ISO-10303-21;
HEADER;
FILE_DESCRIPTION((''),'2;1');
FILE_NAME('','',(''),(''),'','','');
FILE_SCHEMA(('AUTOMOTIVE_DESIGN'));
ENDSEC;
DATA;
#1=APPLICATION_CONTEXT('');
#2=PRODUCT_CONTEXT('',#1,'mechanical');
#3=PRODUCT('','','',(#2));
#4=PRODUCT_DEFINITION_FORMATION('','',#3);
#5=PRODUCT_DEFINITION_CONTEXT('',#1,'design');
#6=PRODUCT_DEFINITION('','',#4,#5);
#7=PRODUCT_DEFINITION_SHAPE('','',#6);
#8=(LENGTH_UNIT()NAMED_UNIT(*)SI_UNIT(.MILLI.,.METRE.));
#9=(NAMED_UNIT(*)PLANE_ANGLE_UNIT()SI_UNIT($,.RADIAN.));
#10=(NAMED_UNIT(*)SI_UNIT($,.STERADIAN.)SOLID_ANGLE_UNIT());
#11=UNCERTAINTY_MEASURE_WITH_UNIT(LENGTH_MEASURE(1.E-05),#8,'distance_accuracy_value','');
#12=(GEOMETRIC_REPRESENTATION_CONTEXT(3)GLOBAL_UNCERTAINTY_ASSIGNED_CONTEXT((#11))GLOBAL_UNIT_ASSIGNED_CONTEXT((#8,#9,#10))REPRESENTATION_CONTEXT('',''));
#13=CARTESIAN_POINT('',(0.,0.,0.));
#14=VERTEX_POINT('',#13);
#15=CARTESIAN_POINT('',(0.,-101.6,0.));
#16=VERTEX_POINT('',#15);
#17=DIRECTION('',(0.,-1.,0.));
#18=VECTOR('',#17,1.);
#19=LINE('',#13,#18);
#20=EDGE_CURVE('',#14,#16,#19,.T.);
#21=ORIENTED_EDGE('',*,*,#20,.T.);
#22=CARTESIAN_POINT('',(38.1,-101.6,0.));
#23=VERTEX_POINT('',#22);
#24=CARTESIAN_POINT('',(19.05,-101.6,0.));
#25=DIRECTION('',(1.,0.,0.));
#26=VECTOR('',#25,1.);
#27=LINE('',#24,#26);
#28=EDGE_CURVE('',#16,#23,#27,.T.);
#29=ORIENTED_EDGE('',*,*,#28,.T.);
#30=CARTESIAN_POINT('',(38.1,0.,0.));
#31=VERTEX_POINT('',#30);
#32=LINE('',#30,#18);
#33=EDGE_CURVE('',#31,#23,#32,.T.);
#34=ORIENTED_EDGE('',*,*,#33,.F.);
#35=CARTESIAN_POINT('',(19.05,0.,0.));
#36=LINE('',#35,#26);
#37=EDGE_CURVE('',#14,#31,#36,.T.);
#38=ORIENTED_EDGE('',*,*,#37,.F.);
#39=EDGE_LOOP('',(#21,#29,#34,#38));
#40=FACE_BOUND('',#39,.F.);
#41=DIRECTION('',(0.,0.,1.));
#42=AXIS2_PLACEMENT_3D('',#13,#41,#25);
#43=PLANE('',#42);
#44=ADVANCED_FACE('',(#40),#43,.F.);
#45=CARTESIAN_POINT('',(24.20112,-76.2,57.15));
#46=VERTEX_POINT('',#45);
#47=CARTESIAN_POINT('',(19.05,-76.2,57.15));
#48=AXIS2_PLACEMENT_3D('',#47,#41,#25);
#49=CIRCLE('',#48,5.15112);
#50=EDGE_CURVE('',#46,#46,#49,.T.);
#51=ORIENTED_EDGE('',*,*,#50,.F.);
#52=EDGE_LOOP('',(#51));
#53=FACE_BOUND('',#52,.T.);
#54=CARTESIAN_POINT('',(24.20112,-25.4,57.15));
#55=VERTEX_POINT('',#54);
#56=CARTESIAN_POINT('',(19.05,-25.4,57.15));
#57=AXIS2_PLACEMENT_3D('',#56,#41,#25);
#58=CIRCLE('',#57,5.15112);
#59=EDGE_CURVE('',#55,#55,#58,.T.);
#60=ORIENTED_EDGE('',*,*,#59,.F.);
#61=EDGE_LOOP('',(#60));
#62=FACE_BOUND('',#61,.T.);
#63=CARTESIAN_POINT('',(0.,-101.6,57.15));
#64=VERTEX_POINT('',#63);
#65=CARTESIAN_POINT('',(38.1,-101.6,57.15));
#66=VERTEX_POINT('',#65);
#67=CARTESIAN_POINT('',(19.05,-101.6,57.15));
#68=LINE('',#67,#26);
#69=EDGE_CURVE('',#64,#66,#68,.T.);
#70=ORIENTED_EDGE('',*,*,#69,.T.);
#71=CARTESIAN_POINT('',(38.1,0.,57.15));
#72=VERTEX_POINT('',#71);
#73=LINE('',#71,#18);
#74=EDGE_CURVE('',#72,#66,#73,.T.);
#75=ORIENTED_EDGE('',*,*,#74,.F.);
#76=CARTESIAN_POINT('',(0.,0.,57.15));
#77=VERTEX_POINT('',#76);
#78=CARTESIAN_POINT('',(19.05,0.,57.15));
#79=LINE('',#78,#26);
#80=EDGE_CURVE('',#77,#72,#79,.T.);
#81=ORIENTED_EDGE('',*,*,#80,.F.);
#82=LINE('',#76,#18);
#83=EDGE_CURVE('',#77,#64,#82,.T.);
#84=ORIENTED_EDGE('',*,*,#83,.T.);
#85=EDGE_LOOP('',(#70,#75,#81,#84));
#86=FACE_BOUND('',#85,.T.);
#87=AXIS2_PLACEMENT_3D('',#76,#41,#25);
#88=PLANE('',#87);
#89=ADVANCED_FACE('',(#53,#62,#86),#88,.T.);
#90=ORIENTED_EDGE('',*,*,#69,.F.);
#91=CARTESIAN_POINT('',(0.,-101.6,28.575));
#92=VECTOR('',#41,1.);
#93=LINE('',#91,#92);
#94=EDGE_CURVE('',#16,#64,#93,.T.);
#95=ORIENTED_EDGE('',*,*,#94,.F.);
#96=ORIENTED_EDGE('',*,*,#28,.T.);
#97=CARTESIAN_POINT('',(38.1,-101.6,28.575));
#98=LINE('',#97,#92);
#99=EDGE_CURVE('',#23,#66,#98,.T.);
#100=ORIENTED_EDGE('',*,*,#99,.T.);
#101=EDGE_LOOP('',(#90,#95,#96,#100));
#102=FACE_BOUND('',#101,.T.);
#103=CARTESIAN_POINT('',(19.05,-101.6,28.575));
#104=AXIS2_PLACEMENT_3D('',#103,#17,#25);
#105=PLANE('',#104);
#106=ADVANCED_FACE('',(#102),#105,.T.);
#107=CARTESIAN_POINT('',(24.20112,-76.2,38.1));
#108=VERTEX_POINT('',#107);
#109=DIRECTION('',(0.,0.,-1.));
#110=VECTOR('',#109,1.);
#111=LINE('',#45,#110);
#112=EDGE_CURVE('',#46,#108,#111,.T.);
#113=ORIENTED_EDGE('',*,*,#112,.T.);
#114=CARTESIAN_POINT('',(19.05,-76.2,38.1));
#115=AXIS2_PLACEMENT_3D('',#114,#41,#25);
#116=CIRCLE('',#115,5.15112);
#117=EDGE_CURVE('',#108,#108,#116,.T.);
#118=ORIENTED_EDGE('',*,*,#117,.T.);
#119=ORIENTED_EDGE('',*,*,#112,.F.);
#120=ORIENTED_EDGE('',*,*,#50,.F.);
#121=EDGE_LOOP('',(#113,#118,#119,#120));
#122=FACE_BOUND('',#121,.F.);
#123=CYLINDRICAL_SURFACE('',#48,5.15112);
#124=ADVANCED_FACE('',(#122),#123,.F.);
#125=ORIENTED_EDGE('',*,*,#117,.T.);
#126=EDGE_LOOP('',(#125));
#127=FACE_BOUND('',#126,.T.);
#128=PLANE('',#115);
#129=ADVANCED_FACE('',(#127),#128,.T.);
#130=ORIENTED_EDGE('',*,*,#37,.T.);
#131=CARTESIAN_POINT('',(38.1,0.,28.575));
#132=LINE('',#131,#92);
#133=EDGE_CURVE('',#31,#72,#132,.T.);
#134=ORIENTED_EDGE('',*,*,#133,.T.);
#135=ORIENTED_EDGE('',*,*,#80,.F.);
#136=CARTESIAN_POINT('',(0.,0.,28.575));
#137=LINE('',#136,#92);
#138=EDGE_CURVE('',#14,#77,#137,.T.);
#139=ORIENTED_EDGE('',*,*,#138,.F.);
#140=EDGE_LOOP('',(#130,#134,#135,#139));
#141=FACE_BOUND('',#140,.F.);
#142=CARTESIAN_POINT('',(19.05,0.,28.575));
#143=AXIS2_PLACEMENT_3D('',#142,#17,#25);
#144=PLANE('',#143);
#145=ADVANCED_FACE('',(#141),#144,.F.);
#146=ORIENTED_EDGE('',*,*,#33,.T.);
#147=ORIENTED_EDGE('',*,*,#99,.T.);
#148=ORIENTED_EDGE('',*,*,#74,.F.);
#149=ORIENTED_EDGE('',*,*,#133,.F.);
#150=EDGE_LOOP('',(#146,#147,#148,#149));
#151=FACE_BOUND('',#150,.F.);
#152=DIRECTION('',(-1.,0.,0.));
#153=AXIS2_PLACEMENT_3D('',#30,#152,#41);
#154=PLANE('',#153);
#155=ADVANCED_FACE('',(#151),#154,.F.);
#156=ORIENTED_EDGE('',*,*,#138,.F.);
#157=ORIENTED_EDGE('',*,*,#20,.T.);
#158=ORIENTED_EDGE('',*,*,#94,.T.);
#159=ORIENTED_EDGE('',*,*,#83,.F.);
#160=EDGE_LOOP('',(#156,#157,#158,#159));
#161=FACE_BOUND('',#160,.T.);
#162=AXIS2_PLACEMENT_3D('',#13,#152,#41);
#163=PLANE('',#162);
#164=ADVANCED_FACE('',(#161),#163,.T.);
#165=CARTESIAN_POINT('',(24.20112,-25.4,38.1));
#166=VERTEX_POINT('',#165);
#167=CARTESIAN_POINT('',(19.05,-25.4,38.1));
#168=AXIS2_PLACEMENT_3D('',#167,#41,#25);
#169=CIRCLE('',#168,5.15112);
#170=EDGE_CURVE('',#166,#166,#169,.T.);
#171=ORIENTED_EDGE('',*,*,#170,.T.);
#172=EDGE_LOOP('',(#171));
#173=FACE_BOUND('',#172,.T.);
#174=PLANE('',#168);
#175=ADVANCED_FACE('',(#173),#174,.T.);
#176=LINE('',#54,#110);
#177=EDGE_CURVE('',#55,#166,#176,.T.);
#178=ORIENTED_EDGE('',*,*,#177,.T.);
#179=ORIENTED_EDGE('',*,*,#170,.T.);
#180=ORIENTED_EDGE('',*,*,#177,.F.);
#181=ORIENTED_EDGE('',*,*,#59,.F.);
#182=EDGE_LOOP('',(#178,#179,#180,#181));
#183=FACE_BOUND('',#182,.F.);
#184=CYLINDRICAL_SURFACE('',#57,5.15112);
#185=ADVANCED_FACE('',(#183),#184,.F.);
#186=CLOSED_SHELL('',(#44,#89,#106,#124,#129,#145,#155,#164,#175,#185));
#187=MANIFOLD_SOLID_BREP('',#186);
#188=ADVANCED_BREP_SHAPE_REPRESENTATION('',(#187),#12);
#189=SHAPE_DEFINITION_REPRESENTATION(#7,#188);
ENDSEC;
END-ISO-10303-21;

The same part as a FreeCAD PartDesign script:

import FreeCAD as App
import Part
import Sketcher
Q = App.Units.Quantity


def add_polygon(sketch, points):
    """Adds a closed chain of lines whose ends are joined by coincident constraints."""
    first, n = sketch.GeometryCount, len(points)
    for a, b in zip(points, points[1:] + points[:1]):
        sketch.addGeometry(Part.LineSegment(App.Vector(*a, 0), App.Vector(*b, 0)), False)
    for i in range(n):
        sketch.addConstraint(Sketcher.Constraint("Coincident", first + i, 2, first + (i + 1) % n, 1))

doc = App.newDocument("Part")
params = doc.addObject("Spreadsheet::Sheet", "Params")
for row, (alias, value) in enumerate([
    ("sketch1_width", "1.5 in"),
    ("sketch1_height", "2.25 in"),
    ("pad1_length", "4 in"),
    ("pocket1_length", "0.75 in"),
], start=1):
    params.set(f"A{row}", alias)
    params.set(f"B{row}", "=" + value)
    params.setAlias(f"B{row}", alias)

body = doc.addObject("PartDesign::Body", "Body")

sketch1 = body.newObject("Sketcher::SketchObject", "Sketch")
sketch1.AttachmentSupport = (doc.getObject("XZ_Plane"), [""])
sketch1.MapMode = "FlatFace"
add_polygon(sketch1, [(0, 57), (0, 0), (38, 0), (38, 57)])
sketch1.addConstraint([
    Sketcher.Constraint("Vertical", 0),
    Sketcher.Constraint("Horizontal", 1),
    Sketcher.Constraint("Vertical", 2),
    Sketcher.Constraint("Horizontal", 3),
    Sketcher.Constraint("Coincident", 0, 2, -1, 1),
    Sketcher.Constraint("DistanceX", 1, 1, 1, 2, Q("1.5 in")),
    Sketcher.Constraint("DistanceY", 0, 2, 0, 1, Q("2.25 in")),
])
sketch1.setExpression("Constraints[9]", "Params.sketch1_width")
sketch1.setExpression("Constraints[10]", "Params.sketch1_height")
pad1 = body.newObject("PartDesign::Pad", "Pad")
pad1.Profile = sketch1
pad1.setExpression("Length", "Params.pad1_length")

sketch2 = body.newObject("Sketcher::SketchObject", "Sketch001")
sketch2.AttachmentSupport = (doc.getObject("XY_Plane"), [""])
sketch2.MapMode = "FlatFace"
sketch2.AttachmentOffset = App.Placement(App.Vector(0, 0, 2.25 * 25.4), App.Rotation())
sketch2.addGeometry([
    Part.Circle(App.Vector(19, -25, 0), App.Vector(0, 0, 1), 5),
    Part.Circle(App.Vector(19, -76, 0), App.Vector(0, 0, 1), 5),
], False)
sketch2.addConstraint([
    Sketcher.Constraint("Equal", 0, 1),
    Sketcher.Constraint("Vertical", 0, 3, 1, 3),
    Sketcher.Constraint("DistanceY", 0, 3, -1, 1, Q("1 in")),
    Sketcher.Constraint("DistanceY", 1, 3, -1, 1, Q("3 in")),
    Sketcher.Constraint("Diameter", 0, Q("0.4056 in")),
    Sketcher.Constraint("DistanceX", -1, 1, 0, 3, Q("0.75 in")),
])
pocket1 = body.newObject("PartDesign::Pocket", "Pocket")
pocket1.Profile = sketch2
pocket1.setExpression("Length", "Params.pocket1_length")

doc.recompute()
